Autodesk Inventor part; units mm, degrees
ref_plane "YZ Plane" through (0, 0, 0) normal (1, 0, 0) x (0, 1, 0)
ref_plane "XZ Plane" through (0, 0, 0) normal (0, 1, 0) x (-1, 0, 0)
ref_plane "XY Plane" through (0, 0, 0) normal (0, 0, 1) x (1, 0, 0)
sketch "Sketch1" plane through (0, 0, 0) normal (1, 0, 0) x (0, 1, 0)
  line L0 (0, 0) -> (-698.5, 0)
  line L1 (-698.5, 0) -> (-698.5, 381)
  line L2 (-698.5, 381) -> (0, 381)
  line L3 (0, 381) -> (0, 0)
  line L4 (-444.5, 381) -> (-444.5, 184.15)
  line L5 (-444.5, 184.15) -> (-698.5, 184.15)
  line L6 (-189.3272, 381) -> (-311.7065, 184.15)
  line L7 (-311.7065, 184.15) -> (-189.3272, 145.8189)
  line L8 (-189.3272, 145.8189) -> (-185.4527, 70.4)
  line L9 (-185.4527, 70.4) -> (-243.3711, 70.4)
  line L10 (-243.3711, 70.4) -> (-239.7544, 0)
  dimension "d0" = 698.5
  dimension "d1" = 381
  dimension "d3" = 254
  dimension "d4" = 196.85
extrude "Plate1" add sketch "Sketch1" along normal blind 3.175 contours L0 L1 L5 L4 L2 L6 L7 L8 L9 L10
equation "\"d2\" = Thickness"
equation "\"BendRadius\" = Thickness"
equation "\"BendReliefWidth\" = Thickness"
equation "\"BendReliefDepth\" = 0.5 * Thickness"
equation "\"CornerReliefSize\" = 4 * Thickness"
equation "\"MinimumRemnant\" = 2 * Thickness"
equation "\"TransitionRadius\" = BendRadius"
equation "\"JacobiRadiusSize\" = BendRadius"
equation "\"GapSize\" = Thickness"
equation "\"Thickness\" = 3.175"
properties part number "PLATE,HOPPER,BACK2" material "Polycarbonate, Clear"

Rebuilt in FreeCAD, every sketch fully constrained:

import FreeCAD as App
import Part
import Sketcher
Q = App.Units.Quantity

doc = App.newDocument("Part")
body = doc.addObject("PartDesign::Body", "Body")

sketch1 = body.newObject("Sketcher::SketchObject", "Sketch")
sketch1.AttachmentSupport = (doc.getObject("YZ_Plane"), [""])
sketch1.MapMode = "FlatFace"
sketch1.addGeometry([
    Part.LineSegment(App.Vector(-698, 0, 0), App.Vector(-240, 0, 0)),
    Part.LineSegment(App.Vector(-240, 0, 0), App.Vector(-243, 70, 0)),
    Part.LineSegment(App.Vector(-243, 70, 0), App.Vector(-185, 70, 0)),
    Part.LineSegment(App.Vector(-185, 70, 0), App.Vector(-189, 146, 0)),
    Part.LineSegment(App.Vector(-189, 146, 0), App.Vector(-312, 184, 0)),
    Part.LineSegment(App.Vector(-312, 184, 0), App.Vector(-189, 381, 0)),
    Part.LineSegment(App.Vector(-189, 381, 0), App.Vector(-444, 381, 0)),
    Part.LineSegment(App.Vector(-444, 381, 0), App.Vector(-444, 184, 0)),
    Part.LineSegment(App.Vector(-444, 184, 0), App.Vector(-698, 184, 0)),
    Part.LineSegment(App.Vector(-698, 184, 0), App.Vector(-698, 0, 0)),
], False)
sketch1.addConstraint([
    Sketcher.Constraint("Coincident", 0, 2, 1, 1),
    Sketcher.Constraint("Coincident", 1, 2, 2, 1),
    Sketcher.Constraint("Coincident", 2, 2, 3, 1),
    Sketcher.Constraint("Coincident", 3, 2, 4, 1),
    Sketcher.Constraint("Coincident", 4, 2, 5, 1),
    Sketcher.Constraint("Coincident", 5, 2, 6, 1),
    Sketcher.Constraint("Coincident", 6, 2, 7, 1),
    Sketcher.Constraint("Coincident", 7, 2, 8, 1),
    Sketcher.Constraint("Coincident", 8, 2, 9, 1),
    Sketcher.Constraint("Coincident", 9, 2, 0, 1),
    Sketcher.Constraint("Horizontal", 0),
    Sketcher.Constraint("Horizontal", 2),
    Sketcher.Constraint("Horizontal", 6),
    Sketcher.Constraint("Vertical", 7),
    Sketcher.Constraint("Horizontal", 8),
    Sketcher.Constraint("Vertical", 9),
    Sketcher.Constraint("PointOnObject", 0, 2, -1),
    Sketcher.Constraint("Parallel", 1, 3),
    Sketcher.Constraint("Horizontal", 4, 2, 7, 2),
    Sketcher.Constraint("Vertical", 3, 2, 5, 2),
    Sketcher.Constraint("DistanceX", 8, 2, 8, 1, Q("10 in")),
    Sketcher.Constraint("DistanceY", -1, 1, 5, 2, Q("15 in")),
    Sketcher.Constraint("DistanceY", 7, 2, 7, 1, Q("7.75 in")),
    Sketcher.Constraint("DistanceX", 8, 2, -1, 1, Q("27.5 in")),
    Sketcher.Constraint("Angle", 1, Q("92.941 deg")),
    Sketcher.Constraint("Distance", 1, Q("2.7753 in")),
    Sketcher.Constraint("Distance", 4, Q("5.0489 in")),
    Sketcher.Constraint("Distance", 5, Q("9.1256 in")),
    Sketcher.Constraint("DistanceX", 0, 1, 0, 2, 458.7456),
    Sketcher.Constraint("DistanceX", 2, 1, 2, 2, 57.9184),
])
pad1 = body.newObject("PartDesign::Pad", "Pad")
pad1.Profile = sketch1
pad1.Length = Q("0.125 in")

doc.recompute()
